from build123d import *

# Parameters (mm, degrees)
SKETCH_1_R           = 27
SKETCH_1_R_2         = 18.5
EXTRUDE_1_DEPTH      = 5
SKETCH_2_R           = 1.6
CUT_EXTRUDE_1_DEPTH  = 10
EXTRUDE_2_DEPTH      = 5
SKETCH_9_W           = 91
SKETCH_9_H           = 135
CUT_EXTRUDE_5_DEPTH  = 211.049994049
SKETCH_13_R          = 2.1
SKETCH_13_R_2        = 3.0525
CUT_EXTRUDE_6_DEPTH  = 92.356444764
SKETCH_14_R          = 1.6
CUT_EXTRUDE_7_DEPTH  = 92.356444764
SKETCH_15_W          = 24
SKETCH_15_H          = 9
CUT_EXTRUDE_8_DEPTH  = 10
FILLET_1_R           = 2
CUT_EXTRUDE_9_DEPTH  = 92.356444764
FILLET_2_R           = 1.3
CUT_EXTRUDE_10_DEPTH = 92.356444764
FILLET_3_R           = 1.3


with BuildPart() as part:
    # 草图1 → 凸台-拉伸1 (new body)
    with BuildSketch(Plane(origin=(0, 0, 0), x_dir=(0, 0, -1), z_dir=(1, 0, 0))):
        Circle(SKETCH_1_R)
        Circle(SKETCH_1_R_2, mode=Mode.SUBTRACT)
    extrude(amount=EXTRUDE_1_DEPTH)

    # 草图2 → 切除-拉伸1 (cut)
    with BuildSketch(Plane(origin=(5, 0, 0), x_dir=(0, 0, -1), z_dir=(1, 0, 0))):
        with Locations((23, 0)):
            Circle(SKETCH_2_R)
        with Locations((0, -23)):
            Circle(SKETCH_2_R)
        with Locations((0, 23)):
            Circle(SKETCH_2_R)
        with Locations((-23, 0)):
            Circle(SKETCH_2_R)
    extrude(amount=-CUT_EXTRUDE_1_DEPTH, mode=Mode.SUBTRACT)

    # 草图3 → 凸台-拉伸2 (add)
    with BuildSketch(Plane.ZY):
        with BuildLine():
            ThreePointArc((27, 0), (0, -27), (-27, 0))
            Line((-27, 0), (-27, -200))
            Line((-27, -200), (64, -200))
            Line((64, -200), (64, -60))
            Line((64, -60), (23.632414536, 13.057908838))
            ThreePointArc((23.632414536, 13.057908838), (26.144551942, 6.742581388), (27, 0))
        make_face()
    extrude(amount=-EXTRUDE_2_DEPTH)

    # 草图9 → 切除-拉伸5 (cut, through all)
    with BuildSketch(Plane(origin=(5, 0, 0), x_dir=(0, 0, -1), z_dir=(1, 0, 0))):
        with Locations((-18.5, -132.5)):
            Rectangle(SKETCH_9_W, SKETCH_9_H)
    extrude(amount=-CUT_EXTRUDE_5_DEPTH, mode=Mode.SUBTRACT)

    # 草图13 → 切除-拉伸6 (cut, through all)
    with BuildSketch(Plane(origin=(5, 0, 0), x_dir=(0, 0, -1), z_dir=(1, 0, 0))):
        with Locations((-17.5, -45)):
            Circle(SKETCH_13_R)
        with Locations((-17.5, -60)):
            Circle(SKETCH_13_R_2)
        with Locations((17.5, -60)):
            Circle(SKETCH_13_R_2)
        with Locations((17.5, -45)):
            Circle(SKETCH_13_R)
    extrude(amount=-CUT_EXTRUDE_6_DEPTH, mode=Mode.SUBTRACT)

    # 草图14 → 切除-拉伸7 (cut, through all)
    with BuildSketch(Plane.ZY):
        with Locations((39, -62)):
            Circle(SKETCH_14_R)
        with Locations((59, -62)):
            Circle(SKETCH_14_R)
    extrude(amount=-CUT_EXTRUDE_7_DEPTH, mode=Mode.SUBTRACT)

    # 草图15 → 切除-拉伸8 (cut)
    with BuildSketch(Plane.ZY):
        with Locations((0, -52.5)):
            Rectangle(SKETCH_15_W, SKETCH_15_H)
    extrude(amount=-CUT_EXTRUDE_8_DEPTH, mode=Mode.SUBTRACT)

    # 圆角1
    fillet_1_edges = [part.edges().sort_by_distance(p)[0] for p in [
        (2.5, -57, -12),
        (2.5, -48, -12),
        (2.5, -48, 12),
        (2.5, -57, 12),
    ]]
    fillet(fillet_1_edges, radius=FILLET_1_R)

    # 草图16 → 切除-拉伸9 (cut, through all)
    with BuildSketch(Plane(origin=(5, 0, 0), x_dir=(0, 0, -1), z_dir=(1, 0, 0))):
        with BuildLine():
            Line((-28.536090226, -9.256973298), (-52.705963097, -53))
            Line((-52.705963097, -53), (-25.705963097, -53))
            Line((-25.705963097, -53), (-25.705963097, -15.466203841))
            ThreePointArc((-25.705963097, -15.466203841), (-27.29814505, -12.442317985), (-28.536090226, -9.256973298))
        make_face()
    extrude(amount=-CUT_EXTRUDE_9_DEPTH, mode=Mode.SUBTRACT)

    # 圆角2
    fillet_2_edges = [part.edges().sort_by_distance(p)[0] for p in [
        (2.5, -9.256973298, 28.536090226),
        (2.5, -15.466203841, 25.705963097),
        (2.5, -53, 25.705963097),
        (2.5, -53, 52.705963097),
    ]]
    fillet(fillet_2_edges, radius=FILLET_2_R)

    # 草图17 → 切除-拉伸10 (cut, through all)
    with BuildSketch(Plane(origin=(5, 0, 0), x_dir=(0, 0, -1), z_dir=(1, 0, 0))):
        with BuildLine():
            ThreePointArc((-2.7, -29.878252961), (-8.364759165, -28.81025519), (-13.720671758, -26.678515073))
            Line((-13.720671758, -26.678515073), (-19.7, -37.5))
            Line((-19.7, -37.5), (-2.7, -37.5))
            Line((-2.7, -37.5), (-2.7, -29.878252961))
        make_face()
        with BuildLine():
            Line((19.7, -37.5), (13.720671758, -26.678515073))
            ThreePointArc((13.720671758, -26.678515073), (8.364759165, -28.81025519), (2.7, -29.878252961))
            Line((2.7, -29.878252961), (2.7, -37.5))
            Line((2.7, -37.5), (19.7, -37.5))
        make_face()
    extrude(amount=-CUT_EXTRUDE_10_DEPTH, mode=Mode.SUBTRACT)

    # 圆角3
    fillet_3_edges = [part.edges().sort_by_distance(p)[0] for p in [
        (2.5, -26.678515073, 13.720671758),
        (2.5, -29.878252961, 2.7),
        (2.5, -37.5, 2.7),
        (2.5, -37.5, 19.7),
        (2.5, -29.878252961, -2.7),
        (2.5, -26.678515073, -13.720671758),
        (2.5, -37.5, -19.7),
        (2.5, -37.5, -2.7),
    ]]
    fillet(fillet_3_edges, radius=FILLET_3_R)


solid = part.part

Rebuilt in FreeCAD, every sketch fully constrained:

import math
import FreeCAD as App
import Part
import Sketcher


def edges_at(feature, points):
    """Names of the edges that pass closest to the given points."""
    edges = feature.Shape.Edges
    near = lambda p: min(range(len(edges)), key=lambda i: edges[i].distToShape(Part.Vertex(*p))[0])
    return sorted({f"Edge{near(p) + 1}" for p in points})

doc = App.newDocument("Part")
params = doc.addObject("Spreadsheet::Sheet", "Params")
for row, (alias, value) in enumerate([
    ("sketch1_diameter", "54 mm"),
    ("sketch1_diameter2", "37 mm"),
    ("pad1_length", "5 mm"),
    ("sketch2_diameter", "3.2 mm"),
    ("pocket1_length", "10 mm"),
    ("sketch3_radius", "27 mm"),
    ("sketch3_width", "200 mm"),
    ("sketch3_width2", "140 mm"),
    ("sketch3_height", "91 mm"),
    ("pad2_length", "5 mm"),
    ("sketch4_width", "135 mm"),
    ("sketch4_height", "91 mm"),
    ("sketch5_diameter", "4.2 mm"),
    ("sketch6_diameter", "3.2 mm"),
    ("sketch7_width", "9 mm"),
    ("sketch7_height", "24 mm"),
    ("pocket5_length", "10 mm"),
    ("fillet_radius", "2 mm"),
    ("sketch8_radius", "30 mm"),
    ("sketch8_height", "27 mm"),
    ("fillet2_radius", "1.3 mm"),
    ("sketch9_radius", "30 mm"),
    ("sketch9_height", "17 mm"),
    ("fillet3_radius", "1.3 mm"),
], start=1):
    params.set(f"A{row}", alias)
    params.set(f"B{row}", "=" + value)
    params.setAlias(f"B{row}", alias)

body = doc.addObject("PartDesign::Body", "Body")

# Sketch on YZ plane
sketch1 = body.newObject("Sketcher::SketchObject", "Sketch")
sketch1.AttachmentSupport = (doc.getObject("YZ_Plane"), [""])
sketch1.MapMode = "FlatFace"
sketch1.addGeometry([
    Part.Circle(App.Vector(0, 0, 0), App.Vector(0, 0, 1), 27),
    Part.Circle(App.Vector(0, 0, 0), App.Vector(0, 0, 1), 18),
], False)
sketch1.addConstraint([
    Sketcher.Constraint("Coincident", 0, 3, -1, 1),
    Sketcher.Constraint("Coincident", 1, 3, -1, 1),
    Sketcher.Constraint("Diameter", 0, 54.0),
    Sketcher.Constraint("Diameter", 1, 37.0),
])
sketch1.setExpression("Constraints[2]", "Params.sketch1_diameter")
sketch1.setExpression("Constraints[3]", "Params.sketch1_diameter2")
pad1 = body.newObject("PartDesign::Pad", "Pad")
pad1.Profile = sketch1
pad1.setExpression("Length", "Params.pad1_length")

# Sketch on YZ plane
sketch2 = body.newObject("Sketcher::SketchObject", "Sketch001")
sketch2.AttachmentSupport = (doc.getObject("YZ_Plane"), [""])
sketch2.MapMode = "FlatFace"
sketch2.AttachmentOffset = App.Placement(App.Vector(0, 0, 5), App.Rotation())
sketch2.addGeometry([
    Part.Circle(App.Vector(0, -23, 0), App.Vector(0, 0, 1), 1.6),
    Part.Circle(App.Vector(-23, 0, 0), App.Vector(0, 0, 1), 1.6),
    Part.Circle(App.Vector(23, 0, 0), App.Vector(0, 0, 1), 1.6),
    Part.Circle(App.Vector(0, 23, 0), App.Vector(0, 0, 1), 1.6),
], False)
sketch2.addConstraint([
    Sketcher.Constraint("Equal", 0, 1),
    Sketcher.Constraint("Equal", 1, 2),
    Sketcher.Constraint("Equal", 2, 3),
    Sketcher.Constraint("Symmetric", 1, 3, 2, 3, -1, 1),
    Sketcher.Constraint("Symmetric", 0, 3, 3, 3, -1, 1),
    Sketcher.Constraint("PointOnObject", 0, 3, -2),
    Sketcher.Constraint("PointOnObject", 1, 3, -1),
    Sketcher.Constraint("Diameter", 0, 3.2),
    Sketcher.Constraint("DistanceY", 0, 3, -1, 1, 23.0),
    Sketcher.Constraint("DistanceX", 1, 3, -1, 1, 23.0),
])
sketch2.setExpression("Constraints[7]", "Params.sketch2_diameter")
pocket1 = body.newObject("PartDesign::Pocket", "Pocket")
pocket1.Profile = sketch2
pocket1.setExpression("Length", "Params.pocket1_length")

# Sketch on YZ plane
sketch3 = body.newObject("Sketcher::SketchObject", "Sketch002")
sketch3.AttachmentSupport = (doc.getObject("YZ_Plane"), [""])
sketch3.MapMode = "FlatFace"
sketch3.addGeometry([
    Part.ArcOfCircle(Part.Circle(App.Vector(0, 0, 0), App.Vector(0, 0, 1), 27), math.radians(90), math.radians(270)),  # 0
    Part.LineSegment(App.Vector(0, -27, 0), App.Vector(-200, -27, 0)),  # 1
    Part.LineSegment(App.Vector(-200, -27, 0), App.Vector(-200, 64, 0)),  # 2
    Part.LineSegment(App.Vector(-200, 64, 0), App.Vector(-60, 64, 0)),  # 3
    Part.LineSegment(App.Vector(-60, 64, 0), App.Vector(13, 24, 0)),  # 4
    Part.ArcOfCircle(Part.Circle(App.Vector(0, 0, 0), App.Vector(0, 0, 1), 27), math.radians(61), math.radians(90)),  # 5
], False)
sketch3.addConstraint([
    Sketcher.Constraint("Tangent", 0, 2, 1, 1),
    Sketcher.Constraint("Coincident", 1, 2, 2, 1),
    Sketcher.Constraint("Coincident", 2, 2, 3, 1),
    Sketcher.Constraint("Coincident", 3, 2, 4, 1),
    Sketcher.Constraint("Tangent", 4, 2, 5, 1),
    Sketcher.Constraint("Tangent", 5, 2, 0, 1),
    Sketcher.Constraint("Horizontal", 1),
    Sketcher.Constraint("Vertical", 2),
    Sketcher.Constraint("Horizontal", 3),
    Sketcher.Constraint("Coincident", 0, 3, -1, 1),
    Sketcher.Constraint("Equal", 0, 5),
    Sketcher.Constraint("PointOnObject", 5, 2, -2),
    Sketcher.Constraint("Radius", 0, 27.0),
    Sketcher.Constraint("DistanceX", 1, 2, 1, 1, 200.0),
    Sketcher.Constraint("DistanceX", 3, 1, 3, 2, 140.0),
    Sketcher.Constraint("DistanceY", 2, 1, 2, 2, 91.0),
])
sketch3.setExpression("Constraints[12]", "Params.sketch3_radius")
sketch3.setExpression("Constraints[13]", "Params.sketch3_width")
sketch3.setExpression("Constraints[14]", "Params.sketch3_width2")
sketch3.setExpression("Constraints[15]", "Params.sketch3_height")
pad2 = body.newObject("PartDesign::Pad", "Pad001")
pad2.Profile = sketch3
pad2.setExpression("Length", "Params.pad2_length")

# Sketch on YZ plane
sketch4 = body.newObject("Sketcher::SketchObject", "Sketch003")
sketch4.AttachmentSupport = (doc.getObject("YZ_Plane"), [""])
sketch4.MapMode = "FlatFace"
sketch4.AttachmentOffset = App.Placement(App.Vector(0, 0, 5), App.Rotation())
sketch4.addGeometry([
    Part.LineSegment(App.Vector(-65, 64, 0), App.Vector(-200, 64, 0)),
    Part.LineSegment(App.Vector(-200, 64, 0), App.Vector(-200, -27, 0)),
    Part.LineSegment(App.Vector(-200, -27, 0), App.Vector(-65, -27, 0)),
    Part.LineSegment(App.Vector(-65, -27, 0), App.Vector(-65, 64, 0)),
], False)
sketch4.addConstraint([
    Sketcher.Constraint("Coincident", 0, 2, 1, 1),
    Sketcher.Constraint("Coincident", 1, 2, 2, 1),
    Sketcher.Constraint("Coincident", 2, 2, 3, 1),
    Sketcher.Constraint("Coincident", 3, 2, 0, 1),
    Sketcher.Constraint("Horizontal", 0),
    Sketcher.Constraint("Vertical", 1),
    Sketcher.Constraint("Horizontal", 2),
    Sketcher.Constraint("Vertical", 3),
    Sketcher.Constraint("DistanceX", 0, 2, 0, 1, 135.0),
    Sketcher.Constraint("DistanceY", 1, 2, 1, 1, 91.0),
    Sketcher.Constraint("DistanceX", 0, 2, -1, 1, 200.0),
    Sketcher.Constraint("DistanceY", -1, 1, 0, 2, 64.0),
])
sketch4.setExpression("Constraints[8]", "Params.sketch4_width")
sketch4.setExpression("Constraints[9]", "Params.sketch4_height")
pocket2 = body.newObject("PartDesign::Pocket", "Pocket001")
pocket2.Profile = sketch4
pocket2.Type = "ThroughAll"

# Sketch on YZ plane
sketch5 = body.newObject("Sketcher::SketchObject", "Sketch004")
sketch5.AttachmentSupport = (doc.getObject("YZ_Plane"), [""])
sketch5.MapMode = "FlatFace"
sketch5.AttachmentOffset = App.Placement(App.Vector(0, 0, 5), App.Rotation())
sketch5.addGeometry([
    Part.Circle(App.Vector(-45, 17.5, 0), App.Vector(0, 0, 1), 2.1),
    Part.Circle(App.Vector(-60, 17.5, 0), App.Vector(0, 0, 1), 3.1),
    Part.Circle(App.Vector(-60, -17.5, 0), App.Vector(0, 0, 1), 3.1),
    Part.Circle(App.Vector(-45, -17.5, 0), App.Vector(0, 0, 1), 2.1),
], False)
sketch5.addConstraint([
    Sketcher.Constraint("Equal", 1, 2),
    Sketcher.Constraint("Equal", 0, 3),
    Sketcher.Constraint("Symmetric", 1, 3, 2, 3, -1),
    Sketcher.Constraint("Symmetric", 0, 3, 3, 3, -1),
    Sketcher.Constraint("Horizontal", 0, 3, 1, 3),
    Sketcher.Constraint("Diameter", 0, 4.2),
    Sketcher.Constraint("Diameter", 1, 6.105),
    Sketcher.Constraint("DistanceX", 0, 3, -1, 1, 45.0),
    Sketcher.Constraint("DistanceX", 1, 3, -1, 1, 60.0),
    Sketcher.Constraint("DistanceY", 2, 3, 1, 3, 35.0),
])
sketch5.setExpression("Constraints[5]", "Params.sketch5_diameter")
pocket3 = body.newObject("PartDesign::Pocket", "Pocket002")
pocket3.Profile = sketch5
pocket3.Type = "ThroughAll"

# Sketch on YZ plane
sketch6 = body.newObject("Sketcher::SketchObject", "Sketch005")
sketch6.AttachmentSupport = (doc.getObject("YZ_Plane"), [""])
sketch6.MapMode = "FlatFace"
sketch6.addGeometry([
    Part.Circle(App.Vector(-62, 39, 0), App.Vector(0, 0, 1), 1.6),
    Part.Circle(App.Vector(-62, 59, 0), App.Vector(0, 0, 1), 1.6),
], False)
sketch6.addConstraint([
    Sketcher.Constraint("Equal", 0, 1),
    Sketcher.Constraint("Vertical", 0, 3, 1, 3),
    Sketcher.Constraint("Diameter", 0, 3.2),
    Sketcher.Constraint("DistanceX", 0, 3, -1, 1, 62.0),
    Sketcher.Constraint("DistanceY", -1, 1, 0, 3, 39.0),
    Sketcher.Constraint("DistanceY", -1, 1, 1, 3, 59.0),
])
sketch6.setExpression("Constraints[2]", "Params.sketch6_diameter")
pocket4 = body.newObject("PartDesign::Pocket", "Pocket003")
pocket4.Profile = sketch6
pocket4.Type = "ThroughAll"
pocket4.Reversed = True

# Sketch on YZ plane
sketch7 = body.newObject("Sketcher::SketchObject", "Sketch006")
sketch7.AttachmentSupport = (doc.getObject("YZ_Plane"), [""])
sketch7.MapMode = "FlatFace"
sketch7.addGeometry([
    Part.LineSegment(App.Vector(-48, -12, 0), App.Vector(-57, -12, 0)),
    Part.LineSegment(App.Vector(-57, -12, 0), App.Vector(-57, 12, 0)),
    Part.LineSegment(App.Vector(-57, 12, 0), App.Vector(-48, 12, 0)),
    Part.LineSegment(App.Vector(-48, 12, 0), App.Vector(-48, -12, 0)),
], False)
sketch7.addConstraint([
    Sketcher.Constraint("Coincident", 0, 2, 1, 1),
    Sketcher.Constraint("Coincident", 1, 2, 2, 1),
    Sketcher.Constraint("Coincident", 2, 2, 3, 1),
    Sketcher.Constraint("Coincident", 3, 2, 0, 1),
    Sketcher.Constraint("Horizontal", 0),
    Sketcher.Constraint("Vertical", 1),
    Sketcher.Constraint("Horizontal", 2),
    Sketcher.Constraint("Vertical", 3),
    Sketcher.Constraint("DistanceX", 0, 2, 0, 1, 9.0),
    Sketcher.Constraint("DistanceY", 1, 1, 1, 2, 24.0),
    Sketcher.Constraint("DistanceX", 0, 2, -1, 1, 57.0),
    Sketcher.Constraint("DistanceY", 0, 2, -1, 1, 12.0),
])
sketch7.setExpression("Constraints[8]", "Params.sketch7_width")
sketch7.setExpression("Constraints[9]", "Params.sketch7_height")
pocket5 = body.newObject("PartDesign::Pocket", "Pocket004")
pocket5.Profile = sketch7
pocket5.setExpression("Length", "Params.pocket5_length")
pocket5.Reversed = True
doc.recompute()

fillet = body.newObject("PartDesign::Fillet", "Fillet")
fillet.Base = (pocket5, edges_at(pocket5, [
    (2.5, -57, -12),
    (2.5, -48, -12),
    (2.5, -48, 12),
    (2.5, -57, 12),
]))
fillet.setExpression("Radius", "Params.fillet_radius")

# Sketch on YZ plane
sketch8 = body.newObject("Sketcher::SketchObject", "Sketch007")
sketch8.AttachmentSupport = (doc.getObject("YZ_Plane"), [""])
sketch8.MapMode = "FlatFace"
sketch8.AttachmentOffset = App.Placement(App.Vector(0, 0, 5), App.Rotation())
sketch8.addGeometry([
    Part.LineSegment(App.Vector(-9, 29, 0), App.Vector(-53, 53, 0)),
    Part.LineSegment(App.Vector(-53, 53, 0), App.Vector(-53, 26, 0)),
    Part.LineSegment(App.Vector(-53, 26, 0), App.Vector(-15, 26, 0)),
    Part.ArcOfCircle(Part.Circle(App.Vector(0, 0, 0), App.Vector(0, 0, 1), 30), math.radians(107.97), math.radians(121.03)),
], False)
sketch8.addConstraint([
    Sketcher.Constraint("Coincident", 0, 2, 1, 1),
    Sketcher.Constraint("Coincident", 1, 2, 2, 1),
    Sketcher.Constraint("Coincident", 2, 2, 3, 2),
    Sketcher.Constraint("Coincident", 3, 1, 0, 1),
    Sketcher.Constraint("Vertical", 1),
    Sketcher.Constraint("Horizontal", 2),
    Sketcher.Constraint("Coincident", 3, 3, -1, 1),
    Sketcher.Constraint("Radius", 3, 30.0),
    Sketcher.Constraint("DistanceY", 1, 2, 1, 1, 27.0),
    Sketcher.Constraint("DistanceX", 0, 2, -1, 1, 53.0),
    Sketcher.Constraint("DistanceX", 2, 1, 2, 2, 37.533796),
    Sketcher.Constraint("DistanceY", -1, 1, 3, 1, 28.53609),
])
sketch8.setExpression("Constraints[7]", "Params.sketch8_radius")
sketch8.setExpression("Constraints[8]", "Params.sketch8_height")
pocket6 = body.newObject("PartDesign::Pocket", "Pocket005")
pocket6.Profile = sketch8
pocket6.Type = "ThroughAll"
doc.recompute()

fillet2 = body.newObject("PartDesign::Fillet", "Fillet001")
fillet2.Base = (pocket6, edges_at(pocket6, [
    (2.5, -9.257, 28.536),
    (2.5, -15.466, 25.706),
    (2.5, -53, 25.706),
    (2.5, -53, 52.706),
]))
fillet2.setExpression("Radius", "Params.fillet2_radius")

# Sketch on YZ plane
sketch9 = body.newObject("Sketcher::SketchObject", "Sketch008")
sketch9.AttachmentSupport = (doc.getObject("YZ_Plane"), [""])
sketch9.MapMode = "FlatFace"
sketch9.AttachmentOffset = App.Placement(App.Vector(0, 0, 5), App.Rotation())
sketch9.addGeometry([
    Part.ArcOfCircle(Part.Circle(App.Vector(0, 0, 0), App.Vector(0, 0, 1), 30), math.radians(153), math.radians(175)),  # 0
    Part.LineSegment(App.Vector(-27, 14, 0), App.Vector(-38, 20, 0)),  # 1
    Part.LineSegment(App.Vector(-38, 20, 0), App.Vector(-38, 3, 0)),  # 2
    Part.LineSegment(App.Vector(-38, 3, 0), App.Vector(-30, 3, 0)),  # 3
    Part.LineSegment(App.Vector(-38, -20, 0), App.Vector(-27, -14, 0)),  # 4
    Part.ArcOfCircle(Part.Circle(App.Vector(0, 0, 0), App.Vector(0, 0, 1), 30), math.radians(-175), math.radians(-153)),  # 5
    Part.LineSegment(App.Vector(-30, -3, 0), App.Vector(-38, -3, 0)),  # 6
    Part.LineSegment(App.Vector(-38, -3, 0), App.Vector(-38, -20, 0)),  # 7
], False)
sketch9.addConstraint([
    Sketcher.Constraint("Coincident", 0, 1, 1, 1),
    Sketcher.Constraint("Coincident", 1, 2, 2, 1),
    Sketcher.Constraint("Coincident", 2, 2, 3, 1),
    Sketcher.Constraint("Coincident", 3, 2, 0, 2),
    Sketcher.Constraint("Coincident", 4, 2, 5, 2),
    Sketcher.Constraint("Coincident", 5, 1, 6, 1),
    Sketcher.Constraint("Coincident", 6, 2, 7, 1),
    Sketcher.Constraint("Coincident", 7, 2, 4, 1),
    Sketcher.Constraint("Vertical", 2),
    Sketcher.Constraint("Horizontal", 3),
    Sketcher.Constraint("Horizontal", 6),
    Sketcher.Constraint("Vertical", 7),
    Sketcher.Constraint("Coincident", 0, 3, -1, 1),
    Sketcher.Constraint("Coincident", 5, 3, -1, 1),
    Sketcher.Constraint("Equal", 0, 5),
    Sketcher.Constraint("Symmetric", 2, 2, 6, 2, -1),
    Sketcher.Constraint("Vertical", 0, 1, 4, 2),
    Sketcher.Constraint("Equal", 2, 7),
    Sketcher.Constraint("Radius", 0, 30.0),
    Sketcher.Constraint("DistanceY", 2, 2, 2, 1, 17.0),
    Sketcher.Constraint("DistanceX", 1, 2, -1, 1, 37.5),
    Sketcher.Constraint("DistanceY", -1, 1, 1, 2, 19.7),
    Sketcher.Constraint("Distance", 1, 12.363531),
])
sketch9.setExpression("Constraints[18]", "Params.sketch9_radius")
sketch9.setExpression("Constraints[19]", "Params.sketch9_height")
pocket7 = body.newObject("PartDesign::Pocket", "Pocket006")
pocket7.Profile = sketch9
pocket7.Type = "ThroughAll"
doc.recompute()

fillet3 = body.newObject("PartDesign::Fillet", "Fillet002")
fillet3.Base = (pocket7, edges_at(pocket7, [
    (2.5, -26.679, 13.721),
    (2.5, -29.878, 2.7),
    (2.5, -37.5, 2.7),
    (2.5, -37.5, 19.7),
    (2.5, -29.878, -2.7),
    (2.5, -26.679, -13.721),
    (2.5, -37.5, -19.7),
    (2.5, -37.5, -2.7),
]))
fillet3.setExpression("Radius", "Params.fillet3_radius")

doc.recompute()
